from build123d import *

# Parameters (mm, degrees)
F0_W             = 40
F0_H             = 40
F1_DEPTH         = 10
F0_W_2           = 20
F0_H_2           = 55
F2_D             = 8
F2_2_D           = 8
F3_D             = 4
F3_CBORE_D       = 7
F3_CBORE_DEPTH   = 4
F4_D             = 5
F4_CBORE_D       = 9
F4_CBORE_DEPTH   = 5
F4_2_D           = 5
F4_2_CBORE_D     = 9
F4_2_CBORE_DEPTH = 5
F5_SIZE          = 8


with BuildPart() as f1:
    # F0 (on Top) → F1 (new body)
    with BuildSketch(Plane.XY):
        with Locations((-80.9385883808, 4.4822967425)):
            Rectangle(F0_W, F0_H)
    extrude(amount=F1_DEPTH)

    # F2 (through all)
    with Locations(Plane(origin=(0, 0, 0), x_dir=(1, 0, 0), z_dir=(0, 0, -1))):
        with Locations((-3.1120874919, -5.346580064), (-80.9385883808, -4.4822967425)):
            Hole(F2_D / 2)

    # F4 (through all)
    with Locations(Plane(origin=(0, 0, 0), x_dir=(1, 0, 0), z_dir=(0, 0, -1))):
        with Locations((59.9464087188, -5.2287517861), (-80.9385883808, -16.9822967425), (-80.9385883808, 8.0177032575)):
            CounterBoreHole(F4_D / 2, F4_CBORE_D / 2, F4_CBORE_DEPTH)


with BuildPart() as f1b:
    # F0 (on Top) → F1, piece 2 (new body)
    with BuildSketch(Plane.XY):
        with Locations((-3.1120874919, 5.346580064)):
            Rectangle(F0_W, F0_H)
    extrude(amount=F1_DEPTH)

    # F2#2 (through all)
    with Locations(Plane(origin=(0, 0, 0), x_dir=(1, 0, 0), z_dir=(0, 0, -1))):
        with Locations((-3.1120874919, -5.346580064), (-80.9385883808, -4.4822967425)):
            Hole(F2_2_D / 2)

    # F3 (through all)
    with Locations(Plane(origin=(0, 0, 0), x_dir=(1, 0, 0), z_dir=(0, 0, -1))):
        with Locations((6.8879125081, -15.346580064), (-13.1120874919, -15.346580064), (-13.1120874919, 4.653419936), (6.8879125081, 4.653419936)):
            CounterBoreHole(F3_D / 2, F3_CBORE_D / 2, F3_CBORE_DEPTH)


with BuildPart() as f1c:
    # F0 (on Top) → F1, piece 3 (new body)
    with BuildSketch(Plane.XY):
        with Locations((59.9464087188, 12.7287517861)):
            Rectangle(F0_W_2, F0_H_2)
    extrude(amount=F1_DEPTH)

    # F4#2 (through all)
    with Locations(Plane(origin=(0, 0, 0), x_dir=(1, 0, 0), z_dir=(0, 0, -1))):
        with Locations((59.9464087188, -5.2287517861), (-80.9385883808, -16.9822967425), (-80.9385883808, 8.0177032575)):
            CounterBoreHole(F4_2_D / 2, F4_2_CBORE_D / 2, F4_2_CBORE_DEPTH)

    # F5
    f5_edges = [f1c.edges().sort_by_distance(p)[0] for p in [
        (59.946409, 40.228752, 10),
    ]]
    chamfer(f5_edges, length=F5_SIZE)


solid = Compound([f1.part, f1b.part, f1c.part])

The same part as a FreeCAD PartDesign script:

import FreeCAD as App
import Part
import Sketcher


def edges_at(feature, points):
    """Names of the edges that pass closest to the given points."""
    edges = feature.Shape.Edges
    near = lambda p: min(range(len(edges)), key=lambda i: edges[i].distToShape(Part.Vertex(*p))[0])
    return sorted({f"Edge{near(p) + 1}" for p in points})


def add_polygon(sketch, points):
    """Adds a closed chain of lines whose ends are joined by coincident constraints."""
    first, n = sketch.GeometryCount, len(points)
    for a, b in zip(points, points[1:] + points[:1]):
        sketch.addGeometry(Part.LineSegment(App.Vector(*a, 0), App.Vector(*b, 0)), False)
    for i in range(n):
        sketch.addConstraint(Sketcher.Constraint("Coincident", first + i, 2, first + (i + 1) % n, 1))

doc = App.newDocument("Part")
params = doc.addObject("Spreadsheet::Sheet", "Params")
for row, (alias, value) in enumerate([
    ("sketch1_width", "40 mm"),
    ("pad1_length", "10 mm"),
    ("sketch2_diameter", "8 mm"),
    ("hole_diameter", "8 mm"),
    ("sketch3_diameter", "5 mm"),
    ("hole2_diameter", "5 mm"),
    ("hole2_cbore_diameter", "9 mm"),
    ("hole2_cbore_depth", "5 mm"),
    ("sketch4_width", "40 mm"),
    ("pad2_length", "10 mm"),
    ("sketch5_diameter", "8 mm"),
    ("hole3_diameter", "8 mm"),
    ("sketch6_diameter", "4 mm"),
    ("hole4_diameter", "4 mm"),
    ("hole4_cbore_diameter", "7 mm"),
    ("hole4_cbore_depth", "4 mm"),
    ("sketch7_width", "20 mm"),
    ("sketch7_height", "55 mm"),
    ("pad3_length", "10 mm"),
    ("sketch8_diameter", "5 mm"),
    ("hole5_diameter", "5 mm"),
    ("hole5_cbore_diameter", "9 mm"),
    ("hole5_cbore_depth", "5 mm"),
    ("chamfer_size", "8 mm"),
], start=1):
    params.set(f"A{row}", alias)
    params.set(f"B{row}", "=" + value)
    params.setAlias(f"B{row}", alias)

body = doc.addObject("PartDesign::Body", "Body")

# Sketch on XY plane
sketch1 = body.newObject("Sketcher::SketchObject", "Sketch")
sketch1.AttachmentSupport = (doc.getObject("XY_Plane"), [""])
sketch1.MapMode = "FlatFace"
add_polygon(sketch1, [(-101, 24), (-101, -16), (-61, -16), (-61, 24)])  # lines 0-3
sketch1.addConstraint([
    Sketcher.Constraint("Vertical", 0),
    Sketcher.Constraint("Horizontal", 1),
    Sketcher.Constraint("Vertical", 2),
    Sketcher.Constraint("Horizontal", 3),
    Sketcher.Constraint("Equal", 3, 0),
    Sketcher.Constraint("DistanceX", 1, 1, 1, 2, 40.0),
    Sketcher.Constraint("DistanceX", 0, 2, -1, 1, 100.938588),
    Sketcher.Constraint("DistanceY", 0, 2, -1, 1, 15.517703),
])
sketch1.setExpression("Constraints[9]", "Params.sketch1_width")
pad1 = body.newObject("PartDesign::Pad", "Pad")
pad1.Profile = sketch1
pad1.setExpression("Length", "Params.pad1_length")

# Sketch on XY plane
sketch2 = body.newObject("Sketcher::SketchObject", "Sketch001")
sketch2.AttachmentSupport = (doc.getObject("XY_Plane"), [""])
sketch2.MapMode = "FlatFace"
sketch2.addGeometry([
    Part.Circle(App.Vector(-3.1, 5.3, 0), App.Vector(0, 0, 1), 4),
    Part.Circle(App.Vector(-80.9, 4.5, 0), App.Vector(0, 0, 1), 4),
], False)
sketch2.addConstraint([
    Sketcher.Constraint("Equal", 0, 1),
    Sketcher.Constraint("Diameter", 0, 8.0),
    Sketcher.Constraint("DistanceX", 1, 3, 0, 3, 77.826501),
    Sketcher.Constraint("DistanceY", -1, 1, 0, 3, 5.34658),
    Sketcher.Constraint("DistanceX", 1, 3, -1, 1, 80.938588),
    Sketcher.Constraint("DistanceY", -1, 1, 1, 3, 4.482297),
])
sketch2.setExpression("Constraints[1]", "Params.sketch2_diameter")
doc.recompute()
hole = body.newObject("PartDesign::Hole", "Hole")
hole.Profile = sketch2
hole.ThreadType = "None"
hole.setExpression("Diameter", "Params.hole_diameter")
hole.DepthType = "ThroughAll"
hole.Reversed = True

# Sketch on XY plane
sketch3 = body.newObject("Sketcher::SketchObject", "Sketch002")
sketch3.AttachmentSupport = (doc.getObject("XY_Plane"), [""])
sketch3.MapMode = "FlatFace"
sketch3.addGeometry([
    Part.Circle(App.Vector(59.9, 5.2, 0), App.Vector(0, 0, 1), 2.5),
    Part.Circle(App.Vector(-80.9, 17, 0), App.Vector(0, 0, 1), 2.5),
    Part.Circle(App.Vector(-80.9, -8, 0), App.Vector(0, 0, 1), 2.5),
], False)
sketch3.addConstraint([
    Sketcher.Constraint("Equal", 0, 1),
    Sketcher.Constraint("Equal", 1, 2),
    Sketcher.Constraint("Vertical", 1, 3, 2, 3),
    Sketcher.Constraint("Diameter", 0, 5.0),
    Sketcher.Constraint("DistanceY", 2, 3, 1, 3, 25.0),
    Sketcher.Constraint("DistanceX", -1, 1, 0, 3, 59.946409),
    Sketcher.Constraint("DistanceY", -1, 1, 0, 3, 5.228752),
    Sketcher.Constraint("DistanceX", 1, 3, -1, 1, 80.938588),
    Sketcher.Constraint("DistanceY", -1, 1, 1, 3, 16.982297),
])
sketch3.setExpression("Constraints[3]", "Params.sketch3_diameter")
doc.recompute()
hole2 = body.newObject("PartDesign::Hole", "Hole001")
hole2.Profile = sketch3
hole2.ThreadType = "None"
hole2.setExpression("Diameter", "Params.hole2_diameter")
hole2.DepthType = "ThroughAll"
hole2.HoleCutType = "Counterbore"
hole2.setExpression("HoleCutDiameter", "Params.hole2_cbore_diameter")
hole2.setExpression("HoleCutDepth", "Params.hole2_cbore_depth")
hole2.Reversed = True
body2 = doc.addObject("PartDesign::Body", "Body001")

# Sketch on XY plane
sketch4 = body2.newObject("Sketcher::SketchObject", "Sketch003")
sketch4.AttachmentSupport = (doc.getObject("XY_Plane001"), [""])
sketch4.MapMode = "FlatFace"
add_polygon(sketch4, [(-23, 25), (-23, -15), (17, -15), (17, 25)])  # lines 0-3
sketch4.addConstraint([
    Sketcher.Constraint("Vertical", 0),
    Sketcher.Constraint("Horizontal", 1),
    Sketcher.Constraint("Vertical", 2),
    Sketcher.Constraint("Horizontal", 3),
    Sketcher.Constraint("Equal", 3, 0),
    Sketcher.Constraint("DistanceX", 1, 1, 1, 2, 40.0),
    Sketcher.Constraint("DistanceY", 0, 2, -1, 1, 14.65342),
    Sketcher.Constraint("DistanceX", 0, 2, -1, 1, 23.112087),
])
sketch4.setExpression("Constraints[9]", "Params.sketch4_width")
pad2 = body2.newObject("PartDesign::Pad", "Pad001")
pad2.Profile = sketch4
pad2.setExpression("Length", "Params.pad2_length")

# Sketch on XY plane
sketch5 = body2.newObject("Sketcher::SketchObject", "Sketch004")
sketch5.AttachmentSupport = (doc.getObject("XY_Plane001"), [""])
sketch5.MapMode = "FlatFace"
sketch5.addGeometry([
    Part.Circle(App.Vector(-3.1, 5.3, 0), App.Vector(0, 0, 1), 4),
    Part.Circle(App.Vector(-80.9, 4.5, 0), App.Vector(0, 0, 1), 4),
], False)
sketch5.addConstraint([
    Sketcher.Constraint("Equal", 0, 1),
    Sketcher.Constraint("Diameter", 0, 8.0),
    Sketcher.Constraint("DistanceX", 1, 3, 0, 3, 77.826501),
    Sketcher.Constraint("DistanceY", -1, 1, 0, 3, 5.34658),
    Sketcher.Constraint("DistanceX", 1, 3, -1, 1, 80.938588),
    Sketcher.Constraint("DistanceY", -1, 1, 1, 3, 4.482297),
])
sketch5.setExpression("Constraints[1]", "Params.sketch5_diameter")
doc.recompute()
hole3 = body2.newObject("PartDesign::Hole", "Hole002")
hole3.Profile = sketch5
hole3.ThreadType = "None"
hole3.setExpression("Diameter", "Params.hole3_diameter")
hole3.DepthType = "ThroughAll"
hole3.Reversed = True

# Sketch on XY plane
sketch6 = body2.newObject("Sketcher::SketchObject", "Sketch005")
sketch6.AttachmentSupport = (doc.getObject("XY_Plane001"), [""])
sketch6.MapMode = "FlatFace"
sketch6.addGeometry([
    Part.Circle(App.Vector(6.9, 15.3, 0), App.Vector(0, 0, 1), 2),
    Part.Circle(App.Vector(-13.1, 15.3, 0), App.Vector(0, 0, 1), 2),
    Part.Circle(App.Vector(-13.1, -4.7, 0), App.Vector(0, 0, 1), 2),
    Part.Circle(App.Vector(6.9, -4.7, 0), App.Vector(0, 0, 1), 2),
], False)
sketch6.addConstraint([
    Sketcher.Constraint("Equal", 0, 1),
    Sketcher.Constraint("Equal", 1, 2),
    Sketcher.Constraint("Equal", 2, 3),
    Sketcher.Constraint("Horizontal", 0, 3, 1, 3),
    Sketcher.Constraint("Horizontal", 2, 3, 3, 3),
    Sketcher.Constraint("Vertical", 1, 3, 2, 3),
    Sketcher.Constraint("Vertical", 0, 3, 3, 3),
    Sketcher.Constraint("Diameter", 0, 4.0),
    Sketcher.Constraint("DistanceX", 1, 3, 0, 3, 20.0),
    Sketcher.Constraint("DistanceY", 2, 3, 1, 3, 20.0),
    Sketcher.Constraint("DistanceY", -1, 1, 0, 3, 15.34658),
    Sketcher.Constraint("DistanceX", -1, 1, 0, 3, 6.887913),
])
sketch6.setExpression("Constraints[7]", "Params.sketch6_diameter")
doc.recompute()
hole4 = body2.newObject("PartDesign::Hole", "Hole003")
hole4.Profile = sketch6
hole4.ThreadType = "None"
hole4.setExpression("Diameter", "Params.hole4_diameter")
hole4.DepthType = "ThroughAll"
hole4.HoleCutType = "Counterbore"
hole4.setExpression("HoleCutDiameter", "Params.hole4_cbore_diameter")
hole4.setExpression("HoleCutDepth", "Params.hole4_cbore_depth")
hole4.Reversed = True
body3 = doc.addObject("PartDesign::Body", "Body002")

# Sketch on XY plane
sketch7 = body3.newObject("Sketcher::SketchObject", "Sketch006")
sketch7.AttachmentSupport = (doc.getObject("XY_Plane002"), [""])
sketch7.MapMode = "FlatFace"
add_polygon(sketch7, [(50, 40), (50, -15), (70, -15), (70, 40)])  # lines 0-3
sketch7.addConstraint([
    Sketcher.Constraint("Vertical", 0),
    Sketcher.Constraint("Horizontal", 1),
    Sketcher.Constraint("Vertical", 2),
    Sketcher.Constraint("Horizontal", 3),
    Sketcher.Constraint("DistanceX", 1, 1, 1, 2, 20.0),
    Sketcher.Constraint("DistanceY", 0, 2, 0, 1, 55.0),
    Sketcher.Constraint("DistanceX", -1, 1, 0, 2, 49.946409),
    Sketcher.Constraint("DistanceY", 0, 2, -1, 1, 14.771248),
])
sketch7.setExpression("Constraints[8]", "Params.sketch7_width")
sketch7.setExpression("Constraints[9]", "Params.sketch7_height")
pad3 = body3.newObject("PartDesign::Pad", "Pad002")
pad3.Profile = sketch7
pad3.setExpression("Length", "Params.pad3_length")

# Sketch on XY plane
sketch8 = body3.newObject("Sketcher::SketchObject", "Sketch007")
sketch8.AttachmentSupport = (doc.getObject("XY_Plane002"), [""])
sketch8.MapMode = "FlatFace"
sketch8.addGeometry([
    Part.Circle(App.Vector(59.9, 5.2, 0), App.Vector(0, 0, 1), 2.5),
    Part.Circle(App.Vector(-80.9, 17, 0), App.Vector(0, 0, 1), 2.5),
    Part.Circle(App.Vector(-80.9, -8, 0), App.Vector(0, 0, 1), 2.5),
], False)
sketch8.addConstraint([
    Sketcher.Constraint("Equal", 0, 1),
    Sketcher.Constraint("Equal", 1, 2),
    Sketcher.Constraint("Vertical", 1, 3, 2, 3),
    Sketcher.Constraint("Diameter", 0, 5.0),
    Sketcher.Constraint("DistanceY", 2, 3, 1, 3, 25.0),
    Sketcher.Constraint("DistanceX", -1, 1, 0, 3, 59.946409),
    Sketcher.Constraint("DistanceY", -1, 1, 0, 3, 5.228752),
    Sketcher.Constraint("DistanceX", 1, 3, -1, 1, 80.938588),
    Sketcher.Constraint("DistanceY", -1, 1, 1, 3, 16.982297),
])
sketch8.setExpression("Constraints[3]", "Params.sketch8_diameter")
doc.recompute()
hole5 = body3.newObject("PartDesign::Hole", "Hole004")
hole5.Profile = sketch8
hole5.ThreadType = "None"
hole5.setExpression("Diameter", "Params.hole5_diameter")
hole5.DepthType = "ThroughAll"
hole5.HoleCutType = "Counterbore"
hole5.setExpression("HoleCutDiameter", "Params.hole5_cbore_diameter")
hole5.setExpression("HoleCutDepth", "Params.hole5_cbore_depth")
hole5.Reversed = True
doc.recompute()

chamfer = body3.newObject("PartDesign::Chamfer", "Chamfer")
chamfer.Base = (hole5, edges_at(hole5, [(59.946, 40.229, 10)]))
chamfer.setExpression("Size", "Params.chamfer_size")

doc.recompute()
